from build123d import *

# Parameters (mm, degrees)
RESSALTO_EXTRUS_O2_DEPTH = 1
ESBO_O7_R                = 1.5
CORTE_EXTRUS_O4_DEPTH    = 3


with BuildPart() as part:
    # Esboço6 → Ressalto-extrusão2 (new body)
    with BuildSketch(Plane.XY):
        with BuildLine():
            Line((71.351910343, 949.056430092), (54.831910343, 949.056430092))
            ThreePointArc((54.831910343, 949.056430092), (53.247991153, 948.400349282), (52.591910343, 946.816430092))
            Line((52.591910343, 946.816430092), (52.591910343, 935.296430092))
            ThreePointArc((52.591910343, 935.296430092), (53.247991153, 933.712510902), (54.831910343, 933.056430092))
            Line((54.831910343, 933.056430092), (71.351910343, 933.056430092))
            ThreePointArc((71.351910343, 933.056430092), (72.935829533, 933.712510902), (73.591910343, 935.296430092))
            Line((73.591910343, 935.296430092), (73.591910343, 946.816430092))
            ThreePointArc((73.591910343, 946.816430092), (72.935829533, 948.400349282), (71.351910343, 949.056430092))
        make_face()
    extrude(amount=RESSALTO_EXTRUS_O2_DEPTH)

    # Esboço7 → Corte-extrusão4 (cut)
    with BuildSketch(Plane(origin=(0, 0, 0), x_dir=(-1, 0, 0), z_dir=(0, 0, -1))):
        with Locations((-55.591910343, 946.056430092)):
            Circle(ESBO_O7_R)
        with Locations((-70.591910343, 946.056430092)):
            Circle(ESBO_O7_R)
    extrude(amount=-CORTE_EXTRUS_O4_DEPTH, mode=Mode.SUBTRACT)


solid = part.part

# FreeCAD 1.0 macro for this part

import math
import FreeCAD as App
import Part
import Sketcher
from FreeCAD import Vector

doc = App.newDocument("Part")
body = doc.addObject("PartDesign::Body", "Body")

# Sketch on XY plane
sketch1 = body.newObject("Sketcher::SketchObject", "Sketch")
sketch1.AttachmentSupport = (doc.getObject("XY_Plane"), [""])
sketch1.MapMode = "FlatFace"
sketch1.addGeometry([
    Part.LineSegment(Vector(71.4, 949.1, 0), Vector(54.8, 949.1, 0)),  # 0
    Part.ArcOfCircle(Part.Circle(Vector(54.8, 946.8, 0), Vector(0, 0, 1), 2.2), math.radians(90), math.radians(180)),  # 1
    Part.LineSegment(Vector(52.6, 946.8, 0), Vector(52.6, 935.3, 0)),  # 2
    Part.ArcOfCircle(Part.Circle(Vector(54.8, 935.3, 0), Vector(0, 0, 1), 2.2), math.radians(180), math.radians(270)),  # 3
    Part.LineSegment(Vector(54.8, 933.1, 0), Vector(71.4, 933.1, 0)),  # 4
    Part.ArcOfCircle(Part.Circle(Vector(71.4, 935.3, 0), Vector(0, 0, 1), 2.2), math.radians(-90), math.radians(0)),  # 5
    Part.LineSegment(Vector(73.6, 935.3, 0), Vector(73.6, 946.8, 0)),  # 6
    Part.ArcOfCircle(Part.Circle(Vector(71.4, 946.8, 0), Vector(0, 0, 1), 2.2), math.radians(0), math.radians(90)),  # 7
], False)
sketch1.addConstraint([
    Sketcher.Constraint("Tangent", 0, 2, 1, 1),
    Sketcher.Constraint("Tangent", 1, 2, 2, 1),
    Sketcher.Constraint("Tangent", 2, 2, 3, 1),
    Sketcher.Constraint("Tangent", 3, 2, 4, 1),
    Sketcher.Constraint("Tangent", 4, 2, 5, 1),
    Sketcher.Constraint("Tangent", 5, 2, 6, 1),
    Sketcher.Constraint("Tangent", 6, 2, 7, 1),
    Sketcher.Constraint("Tangent", 7, 2, 0, 1),
    Sketcher.Constraint("Horizontal", 0),
    Sketcher.Constraint("Vertical", 2),
    Sketcher.Constraint("Horizontal", 4),
    Sketcher.Constraint("Vertical", 6),
    Sketcher.Constraint("Equal", 1, 3),
    Sketcher.Constraint("Equal", 3, 5),
    Sketcher.Constraint("Equal", 5, 7),
    Sketcher.Constraint("Radius", 1, 2.24),
    Sketcher.Constraint("DistanceY", 3, 2, 0, 2, 16.0),
    Sketcher.Constraint("DistanceX", 0, 2, 0, 1, 16.52),
    Sketcher.Constraint("DistanceX", -1, 1, 1, 3, 54.83191),
    Sketcher.Constraint("DistanceY", -1, 1, 1, 3, 946.81643),
])
pad1 = body.newObject("PartDesign::Pad", "Pad")
pad1.Profile = sketch1
pad1.Length = 1

# Sketch on XY plane
sketch2 = body.newObject("Sketcher::SketchObject", "Sketch001")
sketch2.AttachmentSupport = (doc.getObject("XY_Plane"), [""])
sketch2.MapMode = "FlatFace"
sketch2.addGeometry([
    Part.Circle(Vector(55.6, 946.1, 0), Vector(0, 0, 1), 1.5),
    Part.Circle(Vector(70.6, 946.1, 0), Vector(0, 0, 1), 1.5),
], False)
sketch2.addConstraint([
    Sketcher.Constraint("Equal", 0, 1),
    Sketcher.Constraint("Horizontal", 0, 3, 1, 3),
    Sketcher.Constraint("Diameter", 0, 3.0),
    Sketcher.Constraint("DistanceX", 0, 3, 1, 3, 15.0),
    Sketcher.Constraint("DistanceX", -1, 1, 0, 3, 55.59191),
    Sketcher.Constraint("DistanceY", -1, 1, 0, 3, 946.05643),
])
pocket1 = body.newObject("PartDesign::Pocket", "Pocket")
pocket1.Profile = sketch2
pocket1.Length = 3
pocket1.Reversed = True

doc.recompute()
